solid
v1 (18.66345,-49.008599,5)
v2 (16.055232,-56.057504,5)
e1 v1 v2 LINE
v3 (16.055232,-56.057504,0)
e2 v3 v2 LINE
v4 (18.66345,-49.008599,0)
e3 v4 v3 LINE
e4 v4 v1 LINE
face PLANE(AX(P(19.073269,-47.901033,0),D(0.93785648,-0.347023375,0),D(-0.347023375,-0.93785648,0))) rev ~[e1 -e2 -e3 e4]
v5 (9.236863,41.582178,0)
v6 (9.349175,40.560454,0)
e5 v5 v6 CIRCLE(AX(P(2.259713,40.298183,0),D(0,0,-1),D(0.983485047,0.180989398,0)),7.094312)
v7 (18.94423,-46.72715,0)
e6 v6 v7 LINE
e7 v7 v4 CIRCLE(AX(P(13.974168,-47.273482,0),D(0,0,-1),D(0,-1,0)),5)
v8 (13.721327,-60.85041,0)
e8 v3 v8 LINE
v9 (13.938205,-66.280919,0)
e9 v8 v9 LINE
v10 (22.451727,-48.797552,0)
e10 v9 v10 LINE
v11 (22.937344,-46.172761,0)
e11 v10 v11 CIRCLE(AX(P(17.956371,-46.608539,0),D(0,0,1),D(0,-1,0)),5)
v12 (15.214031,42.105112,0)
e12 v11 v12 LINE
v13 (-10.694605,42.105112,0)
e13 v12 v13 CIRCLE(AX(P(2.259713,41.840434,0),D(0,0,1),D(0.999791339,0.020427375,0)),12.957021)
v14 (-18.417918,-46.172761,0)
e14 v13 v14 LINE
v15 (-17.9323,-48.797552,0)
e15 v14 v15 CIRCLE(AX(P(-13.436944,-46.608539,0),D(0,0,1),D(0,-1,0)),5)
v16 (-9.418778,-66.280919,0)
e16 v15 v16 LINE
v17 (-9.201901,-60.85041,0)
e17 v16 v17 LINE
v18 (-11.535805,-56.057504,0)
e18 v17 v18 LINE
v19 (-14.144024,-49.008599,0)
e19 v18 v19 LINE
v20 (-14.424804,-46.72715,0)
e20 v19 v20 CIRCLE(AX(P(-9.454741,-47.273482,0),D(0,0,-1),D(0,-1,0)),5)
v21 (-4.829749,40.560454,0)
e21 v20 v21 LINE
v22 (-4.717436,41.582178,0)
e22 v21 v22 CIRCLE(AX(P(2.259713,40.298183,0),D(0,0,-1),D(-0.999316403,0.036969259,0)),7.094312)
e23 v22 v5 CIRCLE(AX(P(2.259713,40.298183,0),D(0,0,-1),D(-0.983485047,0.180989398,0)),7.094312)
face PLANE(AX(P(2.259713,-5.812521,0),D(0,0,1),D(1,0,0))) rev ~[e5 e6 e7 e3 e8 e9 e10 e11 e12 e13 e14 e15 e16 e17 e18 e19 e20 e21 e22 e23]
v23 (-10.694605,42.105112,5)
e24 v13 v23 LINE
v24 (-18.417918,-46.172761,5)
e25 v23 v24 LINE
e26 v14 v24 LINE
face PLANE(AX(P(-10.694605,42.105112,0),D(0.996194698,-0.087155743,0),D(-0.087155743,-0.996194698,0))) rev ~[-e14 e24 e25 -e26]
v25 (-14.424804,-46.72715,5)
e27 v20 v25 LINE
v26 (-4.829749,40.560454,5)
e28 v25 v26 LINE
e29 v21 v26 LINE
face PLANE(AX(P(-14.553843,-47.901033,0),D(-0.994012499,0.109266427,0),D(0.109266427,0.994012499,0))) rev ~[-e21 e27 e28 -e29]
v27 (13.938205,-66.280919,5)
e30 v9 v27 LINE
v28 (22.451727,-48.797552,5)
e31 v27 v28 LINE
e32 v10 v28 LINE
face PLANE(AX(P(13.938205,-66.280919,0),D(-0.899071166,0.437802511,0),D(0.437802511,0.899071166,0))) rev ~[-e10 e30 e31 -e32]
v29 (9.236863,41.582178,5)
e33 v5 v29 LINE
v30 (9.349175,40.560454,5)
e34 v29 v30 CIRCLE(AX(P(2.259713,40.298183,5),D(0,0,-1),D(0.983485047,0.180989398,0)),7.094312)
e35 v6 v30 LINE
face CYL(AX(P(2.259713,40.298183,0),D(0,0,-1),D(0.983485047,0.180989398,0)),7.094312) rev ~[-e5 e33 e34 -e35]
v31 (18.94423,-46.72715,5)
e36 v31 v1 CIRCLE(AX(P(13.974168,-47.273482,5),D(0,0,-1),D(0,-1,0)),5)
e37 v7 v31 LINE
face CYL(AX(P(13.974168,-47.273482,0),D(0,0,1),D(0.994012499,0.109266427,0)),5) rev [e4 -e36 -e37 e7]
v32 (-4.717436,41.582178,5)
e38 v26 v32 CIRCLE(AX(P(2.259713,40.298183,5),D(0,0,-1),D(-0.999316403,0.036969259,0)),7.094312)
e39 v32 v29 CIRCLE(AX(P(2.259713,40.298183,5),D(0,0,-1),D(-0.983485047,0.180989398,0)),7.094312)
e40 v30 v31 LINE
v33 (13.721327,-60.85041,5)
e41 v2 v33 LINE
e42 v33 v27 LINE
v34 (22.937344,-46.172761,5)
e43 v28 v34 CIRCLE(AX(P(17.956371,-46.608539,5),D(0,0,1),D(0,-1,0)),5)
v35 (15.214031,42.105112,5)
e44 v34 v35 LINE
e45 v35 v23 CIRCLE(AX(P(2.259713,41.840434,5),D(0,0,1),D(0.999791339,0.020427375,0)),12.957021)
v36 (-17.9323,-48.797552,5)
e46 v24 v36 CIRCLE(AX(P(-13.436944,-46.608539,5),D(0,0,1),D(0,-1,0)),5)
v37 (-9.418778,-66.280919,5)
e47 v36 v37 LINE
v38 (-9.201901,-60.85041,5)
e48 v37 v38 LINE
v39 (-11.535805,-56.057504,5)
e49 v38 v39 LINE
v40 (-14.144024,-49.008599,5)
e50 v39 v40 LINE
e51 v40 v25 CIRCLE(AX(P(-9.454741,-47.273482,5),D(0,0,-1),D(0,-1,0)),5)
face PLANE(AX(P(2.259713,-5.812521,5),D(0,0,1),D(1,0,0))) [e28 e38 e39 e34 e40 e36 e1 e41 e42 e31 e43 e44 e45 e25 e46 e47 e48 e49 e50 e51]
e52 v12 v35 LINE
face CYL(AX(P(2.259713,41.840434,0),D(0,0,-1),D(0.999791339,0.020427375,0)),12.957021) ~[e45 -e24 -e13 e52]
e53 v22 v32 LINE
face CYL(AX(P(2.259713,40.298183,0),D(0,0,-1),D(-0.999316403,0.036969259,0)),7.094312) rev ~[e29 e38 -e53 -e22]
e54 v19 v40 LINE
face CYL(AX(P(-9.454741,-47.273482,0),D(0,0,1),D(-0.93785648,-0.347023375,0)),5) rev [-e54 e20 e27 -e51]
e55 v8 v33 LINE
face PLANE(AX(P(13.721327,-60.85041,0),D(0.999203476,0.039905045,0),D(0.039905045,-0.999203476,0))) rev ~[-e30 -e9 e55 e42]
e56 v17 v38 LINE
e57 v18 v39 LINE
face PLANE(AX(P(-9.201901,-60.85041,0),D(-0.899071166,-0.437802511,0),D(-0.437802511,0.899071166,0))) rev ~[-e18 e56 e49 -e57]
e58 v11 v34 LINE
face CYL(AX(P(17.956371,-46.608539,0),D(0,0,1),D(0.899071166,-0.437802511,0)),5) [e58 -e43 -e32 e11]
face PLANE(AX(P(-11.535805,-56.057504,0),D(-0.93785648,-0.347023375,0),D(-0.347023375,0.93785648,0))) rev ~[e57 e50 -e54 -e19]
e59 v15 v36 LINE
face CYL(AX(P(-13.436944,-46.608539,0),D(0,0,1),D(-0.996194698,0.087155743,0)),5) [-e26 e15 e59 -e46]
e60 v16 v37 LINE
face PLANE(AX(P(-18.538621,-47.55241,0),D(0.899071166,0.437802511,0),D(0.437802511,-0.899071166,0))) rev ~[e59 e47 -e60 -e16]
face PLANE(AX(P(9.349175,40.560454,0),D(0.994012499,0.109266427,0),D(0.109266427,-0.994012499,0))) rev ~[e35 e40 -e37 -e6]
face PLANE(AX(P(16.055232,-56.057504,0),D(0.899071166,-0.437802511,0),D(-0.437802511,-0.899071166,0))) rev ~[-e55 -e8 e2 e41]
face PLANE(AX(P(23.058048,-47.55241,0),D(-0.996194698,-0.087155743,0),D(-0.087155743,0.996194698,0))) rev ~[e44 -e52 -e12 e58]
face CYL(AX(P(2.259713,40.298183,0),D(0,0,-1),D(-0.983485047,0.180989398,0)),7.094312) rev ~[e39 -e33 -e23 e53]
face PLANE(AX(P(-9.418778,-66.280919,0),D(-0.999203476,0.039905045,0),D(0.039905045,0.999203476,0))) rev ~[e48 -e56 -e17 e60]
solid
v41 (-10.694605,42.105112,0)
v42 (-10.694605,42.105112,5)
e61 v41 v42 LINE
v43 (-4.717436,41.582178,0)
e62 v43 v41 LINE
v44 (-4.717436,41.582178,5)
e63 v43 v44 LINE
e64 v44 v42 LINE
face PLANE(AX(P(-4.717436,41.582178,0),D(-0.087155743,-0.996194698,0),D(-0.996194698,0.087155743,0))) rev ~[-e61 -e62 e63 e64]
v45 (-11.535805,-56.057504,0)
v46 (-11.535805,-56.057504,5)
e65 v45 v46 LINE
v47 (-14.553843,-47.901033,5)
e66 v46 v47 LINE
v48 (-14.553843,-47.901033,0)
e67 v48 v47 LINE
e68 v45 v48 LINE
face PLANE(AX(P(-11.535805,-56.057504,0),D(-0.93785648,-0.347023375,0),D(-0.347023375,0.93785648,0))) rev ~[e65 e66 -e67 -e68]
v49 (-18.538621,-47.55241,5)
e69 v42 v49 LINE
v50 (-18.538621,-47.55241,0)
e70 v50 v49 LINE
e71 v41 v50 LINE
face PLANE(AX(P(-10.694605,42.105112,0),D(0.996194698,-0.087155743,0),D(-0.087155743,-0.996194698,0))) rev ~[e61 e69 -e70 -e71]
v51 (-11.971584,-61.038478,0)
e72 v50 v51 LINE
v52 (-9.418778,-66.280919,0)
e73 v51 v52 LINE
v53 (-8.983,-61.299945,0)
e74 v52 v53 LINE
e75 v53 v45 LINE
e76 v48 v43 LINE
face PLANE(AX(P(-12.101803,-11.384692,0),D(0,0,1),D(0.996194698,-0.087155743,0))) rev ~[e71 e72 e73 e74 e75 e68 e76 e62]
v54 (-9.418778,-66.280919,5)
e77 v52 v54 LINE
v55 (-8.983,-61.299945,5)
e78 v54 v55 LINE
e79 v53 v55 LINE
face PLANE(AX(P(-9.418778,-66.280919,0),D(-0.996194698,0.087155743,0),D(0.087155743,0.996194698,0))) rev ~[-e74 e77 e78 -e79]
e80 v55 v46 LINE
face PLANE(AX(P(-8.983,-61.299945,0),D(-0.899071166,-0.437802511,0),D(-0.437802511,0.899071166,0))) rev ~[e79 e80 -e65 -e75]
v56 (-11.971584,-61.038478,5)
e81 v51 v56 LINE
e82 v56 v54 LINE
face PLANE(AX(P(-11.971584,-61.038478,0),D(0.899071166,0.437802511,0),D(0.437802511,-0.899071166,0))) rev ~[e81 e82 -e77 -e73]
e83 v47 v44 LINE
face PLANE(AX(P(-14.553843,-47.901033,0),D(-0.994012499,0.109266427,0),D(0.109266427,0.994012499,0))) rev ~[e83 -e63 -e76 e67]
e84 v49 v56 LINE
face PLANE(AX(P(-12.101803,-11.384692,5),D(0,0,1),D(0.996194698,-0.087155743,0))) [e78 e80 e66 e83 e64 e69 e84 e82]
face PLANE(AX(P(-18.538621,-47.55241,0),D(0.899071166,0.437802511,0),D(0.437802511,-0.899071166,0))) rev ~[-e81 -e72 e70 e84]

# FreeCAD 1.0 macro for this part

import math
import FreeCAD as App
import Part
import Sketcher
from FreeCAD import Vector
Q = App.Units.Quantity


def edges_at(feature, points):
    """Names of the edges that pass closest to the given points."""
    edges = feature.Shape.Edges
    near = lambda p: min(range(len(edges)), key=lambda i: edges[i].distToShape(Part.Vertex(*p))[0])
    return sorted({f"Edge{near(p) + 1}" for p in points})


def add_polygon(sketch, points):
    """Adds a closed chain of lines whose ends are joined by coincident constraints."""
    first, n = sketch.GeometryCount, len(points)
    for a, b in zip(points, points[1:] + points[:1]):
        sketch.addGeometry(Part.LineSegment(App.Vector(*a, 0), App.Vector(*b, 0)), False)
    for i in range(n):
        sketch.addConstraint(Sketcher.Constraint("Coincident", first + i, 2, first + (i + 1) % n, 1))

doc = App.newDocument("Part")
body = doc.addObject("PartDesign::Body", "Body")

# Sketch on XY plane
sketch1 = doc.addObject("Sketcher::SketchObject", "Sketch")
body.addObject(sketch1)
sketch1.AttachmentSupport = (doc.XY_Plane, [""])
sketch1.MapMode = "FlatFace"
add_polygon(sketch1, [(-3, -61.280216), (0, -66.280216), (0, -61.280216), (-3, -56.280216), (-6.717436, -48.417822), (-4.717436, 41.582178), (-10.717436, 41.582178), (-10.717436, -48.417822)])  # lines 0-7
sketch1.addConstraint([
    Sketcher.Constraint("Vertical", 1),
    Sketcher.Constraint("Horizontal", 5),
    Sketcher.Constraint("Vertical", 6),
    Sketcher.Constraint("PointOnObject", 0, 2, -2),
    Sketcher.Constraint("Parallel", 0, 2),
    Sketcher.Constraint("Parallel", 2, 7),
    Sketcher.Constraint("Horizontal", 3, 2, 6, 2),
    Sketcher.Constraint("Horizontal", 1, 2, 7, 2),
    Sketcher.Constraint("Vertical", 2, 2, 7, 2),
    Sketcher.Constraint("DistanceX", 5, 2, 5, 1, 6.0),
    Sketcher.Constraint("DistanceY", 1, 1, 1, 2, 5.0),
    Sketcher.Constraint("DistanceY", 6, 2, 6, 1, 90.0),
    Sketcher.Constraint("Distance", 7, 15.0),
    Sketcher.Constraint("DistanceX", 2, 2, -1, 1, 3.0),
    Sketcher.Constraint("DistanceX", 3, 2, 4, 2, 2.0),
    Sketcher.Constraint("DistanceY", 0, 2, -1, 1, 66.280216),
])
pad1 = doc.addObject("PartDesign::Pad", "Pad")
body.addObject(pad1)
pad1.Profile = sketch1
pad1.Length = 5
body2 = doc.addObject("PartDesign::Body", "Body001")
doc.recompute()

body.Placement = App.Placement(Vector(-3.642077, -0.252919, 0), App.Rotation(Vector(0, 0, -1), 5))
boolean = doc.addObject("PartDesign::Boolean", "Boolean")
body2.addObject(boolean)
boolean.Type = "Fuse"
boolean.addObjects([body])
body3 = doc.addObject("PartDesign::Body", "Body002")

# Sketch on XY plane
sketch2 = doc.addObject("Sketcher::SketchObject", "Sketch001")
body3.addObject(sketch2)
sketch2.AttachmentSupport = (doc.getObject("XY_Plane002"), [""])
sketch2.MapMode = "FlatFace"
sketch2.addGeometry([
    Part.ArcOfCircle(Part.Circle(Vector(2.259713, 40.298183, 0), Vector(0, 0, 1), 7.094312), math.radians(2.118665), math.radians(10.427395)),  # 0
    Part.LineSegment(Vector(9.349175, 40.560454, 0), Vector(19.073269, -47.901033, 0)),  # 1
    Part.LineSegment(Vector(19.073269, -47.901033, 0), Vector(16.055232, -56.057504, 0)),  # 2
    Part.LineSegment(Vector(16.055232, -56.057504, 0), Vector(13.721327, -60.85041, 0)),  # 3
    Part.LineSegment(Vector(13.721327, -60.85041, 0), Vector(13.938205, -66.280919, 0)),  # 4
    Part.LineSegment(Vector(13.938205, -66.280919, 0), Vector(23.058048, -47.55241, 0)),  # 5
    Part.LineSegment(Vector(23.058048, -47.55241, 0), Vector(15.214031, 42.105112, 0)),  # 6
    Part.ArcOfCircle(Part.Circle(Vector(2.259713, 41.840434, 0), Vector(0, 0, 1), 12.957021), math.radians(1.170484), math.radians(178.829516)),  # 7
    Part.LineSegment(Vector(-10.694605, 42.105112, 0), Vector(-18.538621, -47.55241, 0)),  # 8
    Part.LineSegment(Vector(-18.538621, -47.55241, 0), Vector(-9.418778, -66.280919, 0)),  # 9
    Part.LineSegment(Vector(-9.418778, -66.280919, 0), Vector(-9.201901, -60.85041, 0)),  # 10
    Part.LineSegment(Vector(-9.201901, -60.85041, 0), Vector(-11.535805, -56.057504, 0)),  # 11
    Part.LineSegment(Vector(-11.535805, -56.057504, 0), Vector(-14.553843, -47.901033, 0)),  # 12
    Part.LineSegment(Vector(-14.553843, -47.901033, 0), Vector(-4.829749, 40.560454, 0)),  # 13
    Part.ArcOfCircle(Part.Circle(Vector(2.259713, 40.298183, 0), Vector(0, 0, 1), 7.094312), math.radians(169.572605), math.radians(177.881335)),  # 14
    Part.ArcOfCircle(Part.Circle(Vector(2.259713, 40.298183, 0), Vector(0, 0, 1), 7.094312), math.radians(10.427395), math.radians(169.572605)),  # 15
], False)
sketch2.addConstraint([
    Sketcher.Constraint("Coincident", 0, 1, 1, 1),
    Sketcher.Constraint("Coincident", 1, 2, 2, 1),
    Sketcher.Constraint("Coincident", 2, 2, 3, 1),
    Sketcher.Constraint("Coincident", 3, 2, 4, 1),
    Sketcher.Constraint("Coincident", 4, 2, 5, 1),
    Sketcher.Constraint("Coincident", 5, 2, 6, 1),
    Sketcher.Constraint("Coincident", 6, 2, 7, 1),
    Sketcher.Constraint("Coincident", 7, 2, 8, 1),
    Sketcher.Constraint("Coincident", 8, 2, 9, 1),
    Sketcher.Constraint("Coincident", 9, 2, 10, 1),
    Sketcher.Constraint("Coincident", 10, 2, 11, 1),
    Sketcher.Constraint("Coincident", 11, 2, 12, 1),
    Sketcher.Constraint("Coincident", 12, 2, 13, 1),
    Sketcher.Constraint("Coincident", 13, 2, 14, 2),
    Sketcher.Constraint("Tangent", 14, 1, 15, 2),
    Sketcher.Constraint("Tangent", 15, 1, 0, 2),
    Sketcher.Constraint("Coincident", 14, 3, 0, 3),
    Sketcher.Constraint("Parallel", 3, 5),
    Sketcher.Constraint("Parallel", 9, 11),
    Sketcher.Constraint("Horizontal", 6, 2, 7, 2),
    Sketcher.Constraint("Horizontal", 5, 2, 8, 2),
    Sketcher.Constraint("Horizontal", 4, 2, 9, 2),
    Sketcher.Constraint("Horizontal", 3, 2, 10, 2),
    Sketcher.Constraint("Horizontal", 2, 2, 11, 2),
    Sketcher.Constraint("Horizontal", 1, 2, 12, 2),
    Sketcher.Constraint("Horizontal", 0, 1, 13, 2),
    Sketcher.Constraint("Horizontal", 14, 1, 15, 1),
    Sketcher.Constraint("Vertical", 0, 3, 7, 3),
    Sketcher.Constraint("Equal", 6, 8),
    Sketcher.Constraint("Equal", 5, 9),
    Sketcher.Constraint("Equal", 4, 10),
    Sketcher.Constraint("Equal", 2, 12),
    Sketcher.Constraint("Angle", 6, Q("95 deg")),
    Sketcher.Constraint("Distance", 6, 90.0),
    Sketcher.Constraint("Radius", 0, 7.094312),
    Sketcher.Constraint("Radius", 7, 12.957021),
    Sketcher.Constraint("DistanceY", 3, 2, 5, 2, 13.297999),
    Sketcher.Constraint("DistanceX", 10, 2, -1, 1, 9.201901),
    Sketcher.Constraint("DistanceY", 4, 2, 14, 3, 106.579101),
    Sketcher.Constraint("Distance", 1, 88.994341),
    Sketcher.Constraint("Distance", 2, 8.696929),
    Sketcher.Constraint("Distance", 3, 5.330952),
    Sketcher.Constraint("Distance", 4, 5.434838),
    Sketcher.Constraint("Distance", 5, 20.830952),
    Sketcher.Constraint("DistanceX", -1, 1, 1, 2, 19.073269),
    Sketcher.Constraint("DistanceX", -1, 1, 2, 2, 16.055232),
    Sketcher.Constraint("DistanceY", 3, 2, -1, 1, 60.85041),
    Sketcher.Constraint("DistanceX", -1, 1, 6, 2, 15.214031),
    Sketcher.Constraint("DistanceX", 7, 2, 14, 1, 5.977168),
])
pad2 = doc.addObject("PartDesign::Pad", "Pad001")
body3.addObject(pad2)
pad2.Profile = sketch2
pad2.Length = 5
doc.recompute()

fillet = doc.addObject("PartDesign::Fillet", "Fillet")
body3.addObject(fillet)
fillet.Base = (pad2, edges_at(pad2, [
    (-18.539, -47.552, 2.5),
    (-14.554, -47.901, 2.5),
    (19.073, -47.901, 2.5),
    (23.058, -47.552, 2.5),
]))
fillet.Radius = 5

doc.recompute()
